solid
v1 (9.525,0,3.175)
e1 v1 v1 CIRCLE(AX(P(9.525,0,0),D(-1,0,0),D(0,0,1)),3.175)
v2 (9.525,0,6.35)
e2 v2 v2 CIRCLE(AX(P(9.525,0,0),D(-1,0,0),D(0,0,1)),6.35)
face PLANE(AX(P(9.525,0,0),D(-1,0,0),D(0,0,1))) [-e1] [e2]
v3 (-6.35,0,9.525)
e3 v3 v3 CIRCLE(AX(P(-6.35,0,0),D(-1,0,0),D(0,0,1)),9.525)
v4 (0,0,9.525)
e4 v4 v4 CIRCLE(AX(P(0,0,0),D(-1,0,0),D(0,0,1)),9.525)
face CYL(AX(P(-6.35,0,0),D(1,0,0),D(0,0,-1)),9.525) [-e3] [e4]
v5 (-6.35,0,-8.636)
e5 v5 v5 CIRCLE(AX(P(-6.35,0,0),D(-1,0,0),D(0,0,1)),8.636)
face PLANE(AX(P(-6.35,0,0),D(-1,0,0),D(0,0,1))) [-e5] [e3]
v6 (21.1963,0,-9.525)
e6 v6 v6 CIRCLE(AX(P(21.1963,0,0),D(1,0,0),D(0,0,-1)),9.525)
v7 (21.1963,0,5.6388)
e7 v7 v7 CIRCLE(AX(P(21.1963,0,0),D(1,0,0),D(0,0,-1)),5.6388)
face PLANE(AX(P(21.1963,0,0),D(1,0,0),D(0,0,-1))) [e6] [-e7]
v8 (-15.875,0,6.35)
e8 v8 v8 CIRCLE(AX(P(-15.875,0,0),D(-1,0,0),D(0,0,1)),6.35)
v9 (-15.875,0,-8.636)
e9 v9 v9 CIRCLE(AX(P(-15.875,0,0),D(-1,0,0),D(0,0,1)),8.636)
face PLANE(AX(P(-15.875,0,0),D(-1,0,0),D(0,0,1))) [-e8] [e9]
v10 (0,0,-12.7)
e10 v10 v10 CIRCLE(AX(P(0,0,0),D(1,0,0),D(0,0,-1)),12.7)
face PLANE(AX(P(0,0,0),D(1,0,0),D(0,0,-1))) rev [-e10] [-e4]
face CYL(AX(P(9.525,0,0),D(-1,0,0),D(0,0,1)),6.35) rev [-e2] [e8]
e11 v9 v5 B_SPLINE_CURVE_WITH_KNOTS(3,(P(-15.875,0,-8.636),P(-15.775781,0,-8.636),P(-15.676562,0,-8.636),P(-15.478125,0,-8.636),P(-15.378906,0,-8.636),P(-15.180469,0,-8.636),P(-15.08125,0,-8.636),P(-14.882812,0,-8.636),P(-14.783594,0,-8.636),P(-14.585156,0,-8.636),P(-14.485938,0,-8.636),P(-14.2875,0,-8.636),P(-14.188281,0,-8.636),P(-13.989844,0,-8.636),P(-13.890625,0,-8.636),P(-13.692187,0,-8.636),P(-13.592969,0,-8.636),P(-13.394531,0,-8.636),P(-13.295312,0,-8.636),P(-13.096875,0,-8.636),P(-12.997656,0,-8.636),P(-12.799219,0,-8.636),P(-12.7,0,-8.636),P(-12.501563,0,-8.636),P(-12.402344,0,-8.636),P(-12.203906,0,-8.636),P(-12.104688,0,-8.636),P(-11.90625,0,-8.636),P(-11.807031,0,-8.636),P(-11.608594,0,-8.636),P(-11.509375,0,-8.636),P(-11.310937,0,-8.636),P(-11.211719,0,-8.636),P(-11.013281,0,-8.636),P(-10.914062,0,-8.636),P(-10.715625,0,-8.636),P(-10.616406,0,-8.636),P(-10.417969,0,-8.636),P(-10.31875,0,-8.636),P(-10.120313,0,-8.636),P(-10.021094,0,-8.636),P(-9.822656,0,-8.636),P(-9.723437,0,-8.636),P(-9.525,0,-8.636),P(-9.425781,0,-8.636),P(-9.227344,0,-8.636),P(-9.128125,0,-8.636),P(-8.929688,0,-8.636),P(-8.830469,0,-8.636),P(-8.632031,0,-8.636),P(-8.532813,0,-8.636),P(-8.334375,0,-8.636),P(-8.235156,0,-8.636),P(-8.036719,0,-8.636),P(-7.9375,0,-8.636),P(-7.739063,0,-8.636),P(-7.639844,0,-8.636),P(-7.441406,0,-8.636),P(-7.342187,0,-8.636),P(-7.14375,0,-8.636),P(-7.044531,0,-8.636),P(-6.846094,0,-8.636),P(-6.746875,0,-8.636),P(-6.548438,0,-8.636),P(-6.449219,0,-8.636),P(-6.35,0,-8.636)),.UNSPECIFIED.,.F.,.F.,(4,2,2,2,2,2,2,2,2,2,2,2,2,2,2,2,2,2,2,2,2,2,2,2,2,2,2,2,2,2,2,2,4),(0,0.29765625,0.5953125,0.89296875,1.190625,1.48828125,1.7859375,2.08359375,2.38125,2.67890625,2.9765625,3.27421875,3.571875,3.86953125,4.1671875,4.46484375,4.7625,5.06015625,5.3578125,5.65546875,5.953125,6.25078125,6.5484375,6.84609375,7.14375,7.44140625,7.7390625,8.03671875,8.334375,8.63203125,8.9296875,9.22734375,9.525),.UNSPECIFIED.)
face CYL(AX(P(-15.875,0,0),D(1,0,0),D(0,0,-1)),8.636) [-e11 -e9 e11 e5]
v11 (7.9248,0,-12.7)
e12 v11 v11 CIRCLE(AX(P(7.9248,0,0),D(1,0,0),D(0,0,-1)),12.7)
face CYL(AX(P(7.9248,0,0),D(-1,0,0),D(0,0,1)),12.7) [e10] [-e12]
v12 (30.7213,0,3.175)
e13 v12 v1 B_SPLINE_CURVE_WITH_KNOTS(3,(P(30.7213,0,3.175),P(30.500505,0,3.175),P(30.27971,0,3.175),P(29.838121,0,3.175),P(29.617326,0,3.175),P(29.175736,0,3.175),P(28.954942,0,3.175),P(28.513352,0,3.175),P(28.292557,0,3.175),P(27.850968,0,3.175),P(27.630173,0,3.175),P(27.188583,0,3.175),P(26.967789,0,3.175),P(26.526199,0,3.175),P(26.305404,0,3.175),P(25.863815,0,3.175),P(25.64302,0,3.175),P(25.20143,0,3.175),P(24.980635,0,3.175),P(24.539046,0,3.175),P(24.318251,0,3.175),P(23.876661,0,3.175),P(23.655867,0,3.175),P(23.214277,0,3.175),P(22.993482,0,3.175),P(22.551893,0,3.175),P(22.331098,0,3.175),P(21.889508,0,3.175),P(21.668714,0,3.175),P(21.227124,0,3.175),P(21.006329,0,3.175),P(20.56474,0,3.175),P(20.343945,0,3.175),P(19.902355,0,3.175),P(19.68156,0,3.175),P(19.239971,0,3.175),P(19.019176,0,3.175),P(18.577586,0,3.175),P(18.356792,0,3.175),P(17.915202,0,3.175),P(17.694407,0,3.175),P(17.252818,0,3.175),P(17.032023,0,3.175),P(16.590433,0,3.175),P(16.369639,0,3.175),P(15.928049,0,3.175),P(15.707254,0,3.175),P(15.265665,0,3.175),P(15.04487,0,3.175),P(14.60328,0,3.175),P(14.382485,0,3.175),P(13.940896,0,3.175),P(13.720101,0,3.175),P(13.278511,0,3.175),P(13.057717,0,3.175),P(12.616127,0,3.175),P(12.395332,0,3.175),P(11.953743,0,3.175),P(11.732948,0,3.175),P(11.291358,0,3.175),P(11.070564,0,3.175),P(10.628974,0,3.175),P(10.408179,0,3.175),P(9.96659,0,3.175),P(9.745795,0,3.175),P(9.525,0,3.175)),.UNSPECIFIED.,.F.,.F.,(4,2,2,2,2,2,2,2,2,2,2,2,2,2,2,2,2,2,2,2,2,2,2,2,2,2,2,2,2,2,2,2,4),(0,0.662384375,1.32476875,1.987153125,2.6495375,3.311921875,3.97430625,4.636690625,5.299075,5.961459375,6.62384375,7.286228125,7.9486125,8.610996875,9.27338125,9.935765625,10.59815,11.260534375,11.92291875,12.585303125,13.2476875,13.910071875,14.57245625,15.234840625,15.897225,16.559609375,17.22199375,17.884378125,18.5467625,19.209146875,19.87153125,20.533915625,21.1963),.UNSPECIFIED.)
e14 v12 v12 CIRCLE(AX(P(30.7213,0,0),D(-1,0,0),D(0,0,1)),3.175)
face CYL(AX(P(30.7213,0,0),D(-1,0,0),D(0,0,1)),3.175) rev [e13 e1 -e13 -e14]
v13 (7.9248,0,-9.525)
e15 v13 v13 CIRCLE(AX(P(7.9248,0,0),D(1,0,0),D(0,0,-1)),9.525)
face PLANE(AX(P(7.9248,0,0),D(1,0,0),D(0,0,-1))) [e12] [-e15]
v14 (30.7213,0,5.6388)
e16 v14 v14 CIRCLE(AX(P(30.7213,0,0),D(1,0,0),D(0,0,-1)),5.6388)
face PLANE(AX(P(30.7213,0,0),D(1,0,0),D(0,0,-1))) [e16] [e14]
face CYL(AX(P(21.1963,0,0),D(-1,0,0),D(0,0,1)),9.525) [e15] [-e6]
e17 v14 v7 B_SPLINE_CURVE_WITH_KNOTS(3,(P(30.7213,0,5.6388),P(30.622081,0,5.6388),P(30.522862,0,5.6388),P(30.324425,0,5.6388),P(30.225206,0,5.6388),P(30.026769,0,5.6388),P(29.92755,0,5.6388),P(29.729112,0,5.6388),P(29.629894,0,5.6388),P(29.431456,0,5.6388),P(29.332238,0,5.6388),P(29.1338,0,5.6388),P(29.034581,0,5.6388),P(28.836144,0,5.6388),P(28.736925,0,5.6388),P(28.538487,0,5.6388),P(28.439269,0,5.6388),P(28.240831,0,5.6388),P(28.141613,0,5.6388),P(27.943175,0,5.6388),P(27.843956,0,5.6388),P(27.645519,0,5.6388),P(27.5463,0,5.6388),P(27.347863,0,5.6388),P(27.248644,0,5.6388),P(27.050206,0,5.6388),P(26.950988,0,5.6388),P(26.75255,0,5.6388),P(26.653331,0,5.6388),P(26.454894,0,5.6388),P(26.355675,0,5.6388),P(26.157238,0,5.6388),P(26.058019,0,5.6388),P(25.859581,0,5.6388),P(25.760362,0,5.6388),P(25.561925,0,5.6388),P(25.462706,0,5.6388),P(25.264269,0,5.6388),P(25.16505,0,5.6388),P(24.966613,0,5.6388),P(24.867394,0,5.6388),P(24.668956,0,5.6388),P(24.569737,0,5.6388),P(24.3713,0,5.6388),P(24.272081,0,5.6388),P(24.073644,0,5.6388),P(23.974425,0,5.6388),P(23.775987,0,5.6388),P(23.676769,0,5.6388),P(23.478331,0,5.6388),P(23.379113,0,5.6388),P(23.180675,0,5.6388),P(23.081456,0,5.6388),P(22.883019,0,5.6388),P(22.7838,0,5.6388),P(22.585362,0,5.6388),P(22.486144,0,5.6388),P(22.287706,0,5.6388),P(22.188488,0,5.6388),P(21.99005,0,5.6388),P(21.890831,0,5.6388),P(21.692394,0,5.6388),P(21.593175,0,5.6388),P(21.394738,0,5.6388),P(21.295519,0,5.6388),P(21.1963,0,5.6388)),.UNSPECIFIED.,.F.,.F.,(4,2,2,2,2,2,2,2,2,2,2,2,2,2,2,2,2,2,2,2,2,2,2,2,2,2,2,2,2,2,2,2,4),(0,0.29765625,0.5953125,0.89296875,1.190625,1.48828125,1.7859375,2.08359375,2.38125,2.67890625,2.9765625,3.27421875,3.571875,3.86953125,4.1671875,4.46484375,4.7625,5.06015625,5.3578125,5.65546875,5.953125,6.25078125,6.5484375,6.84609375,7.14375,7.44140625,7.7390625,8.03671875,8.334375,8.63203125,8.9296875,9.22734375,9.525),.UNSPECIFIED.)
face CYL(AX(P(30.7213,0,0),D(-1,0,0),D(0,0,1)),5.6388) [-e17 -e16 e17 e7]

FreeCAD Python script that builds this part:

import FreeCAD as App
import Part
import Sketcher

V = App.Vector
Q = App.Units.Quantity

doc = App.newDocument("Part")
params = doc.addObject("Spreadsheet::Sheet", "Params")
for row, (alias, value) in enumerate([
    ("sketch1_diameter", "1 in"),
    ("pad1_length", "0.312 in"),
    ("sketch2_diameter", "0.75 in"),
    ("pad2_length", "0.5225 in"),
    ("sketch3_diameter", "0.444 in"),
    ("pad3_length", "0.375 in"),
    ("sketch4_diameter", "0.75 in"),
    ("pad4_length", "0.25 in"),
    ("sketch5_diameter", "0.68 in"),
    ("pad5_length", "0.375 in"),
    ("sketch6_diameter", "0.5 in"),
    ("pocket1_length", "1 in"),
    ("sketch7_diameter", "0.25 in"),
], start=1):
    params.set(f"A{row}", alias)
    params.set(f"B{row}", "=" + value)
    params.setAlias(f"B{row}", alias)

body = doc.addObject("PartDesign::Body", "Body")

sketch1 = body.newObject("Sketcher::SketchObject", "Sketch")
sketch1.AttachmentSupport = (doc.getObject("YZ_Plane"), [""])
sketch1.MapMode = "FlatFace"
sketch1.addGeometry(Part.Circle(V(0, 0, 0), V(0, 0, 1), 13), False)
sketch1.addConstraint([
    Sketcher.Constraint("Coincident", 0, 3, -1, 1),
    Sketcher.Constraint("Diameter", 0, Q("1 in")),
])
sketch1.setExpression("Constraints[1]", "Params.sketch1_diameter")
pad1 = body.newObject("PartDesign::Pad", "Pad")
pad1.Profile = sketch1
pad1.setExpression("Length", "Params.pad1_length")

sketch2 = body.newObject("Sketcher::SketchObject", "Sketch001")
sketch2.AttachmentSupport = (doc.getObject("YZ_Plane"), [""])
sketch2.MapMode = "FlatFace"
sketch2.AttachmentOffset = App.Placement(V(0, 0, 0.312 * 25.4), App.Rotation())
sketch2.addGeometry(Part.Circle(V(0, 0, 0), V(0, 0, 1), 10), False)
sketch2.addConstraint([
    Sketcher.Constraint("Coincident", 0, 3, -1, 1),
    Sketcher.Constraint("Diameter", 0, Q("0.75 in")),
])
sketch2.setExpression("Constraints[1]", "Params.sketch2_diameter")
pad2 = body.newObject("PartDesign::Pad", "Pad001")
pad2.Profile = sketch2
pad2.setExpression("Length", "Params.pad2_length")

sketch3 = body.newObject("Sketcher::SketchObject", "Sketch002")
sketch3.AttachmentSupport = (doc.getObject("YZ_Plane"), [""])
sketch3.MapMode = "FlatFace"
sketch3.AttachmentOffset = App.Placement(V(0, 0, 0.8345 * 25.4), App.Rotation())
sketch3.addGeometry(Part.Circle(V(0, 0, 0), V(0, 0, 1), 6), False)
sketch3.addConstraint([
    Sketcher.Constraint("Coincident", 0, 3, -1, 1),
    Sketcher.Constraint("Diameter", 0, Q("0.444 in")),
])
sketch3.setExpression("Constraints[1]", "Params.sketch3_diameter")
pad3 = body.newObject("PartDesign::Pad", "Pad002")
pad3.Profile = sketch3
pad3.setExpression("Length", "Params.pad3_length")

sketch4 = body.newObject("Sketcher::SketchObject", "Sketch003")
sketch4.AttachmentSupport = (doc.getObject("YZ_Plane"), [""])
sketch4.MapMode = "FlatFace"
sketch4.AttachmentOffset = App.Placement(V(0, 0, -0.25 * 25.4), App.Rotation())
sketch4.addGeometry(Part.Circle(V(0, 0, 0), V(0, 0, 1), 10), False)
sketch4.addConstraint([
    Sketcher.Constraint("Coincident", 0, 3, -1, 1),
    Sketcher.Constraint("Diameter", 0, Q("0.75 in")),
])
sketch4.setExpression("Constraints[1]", "Params.sketch4_diameter")
pad4 = body.newObject("PartDesign::Pad", "Pad003")
pad4.Profile = sketch4
pad4.setExpression("Length", "Params.pad4_length")

sketch5 = body.newObject("Sketcher::SketchObject", "Sketch004")
sketch5.AttachmentSupport = (doc.getObject("YZ_Plane"), [""])
sketch5.MapMode = "FlatFace"
sketch5.AttachmentOffset = App.Placement(V(0, 0, -0.25 * 25.4), App.Rotation())
sketch5.addGeometry(Part.Circle(V(0, 0, 0), V(0, 0, 1), 9), False)
sketch5.addConstraint([
    Sketcher.Constraint("Coincident", 0, 3, -1, 1),
    Sketcher.Constraint("Diameter", 0, Q("0.68 in")),
])
sketch5.setExpression("Constraints[1]", "Params.sketch5_diameter")
pad5 = body.newObject("PartDesign::Pad", "Pad004")
pad5.Profile = sketch5
pad5.setExpression("Length", "Params.pad5_length")
pad5.Reversed = True

sketch6 = body.newObject("Sketcher::SketchObject", "Sketch005")
sketch6.AttachmentSupport = (doc.getObject("YZ_Plane"), [""])
sketch6.MapMode = "FlatFace"
sketch6.AttachmentOffset = App.Placement(V(0, 0, -0.625 * 25.4), App.Rotation())
sketch6.addGeometry(Part.Circle(V(0, 0, 0), V(0, 0, 1), 6), False)
sketch6.addConstraint([
    Sketcher.Constraint("Coincident", 0, 3, -1, 1),
    Sketcher.Constraint("Diameter", 0, Q("0.5 in")),
])
sketch6.setExpression("Constraints[1]", "Params.sketch6_diameter")
pocket1 = body.newObject("PartDesign::Pocket", "Pocket")
pocket1.Profile = sketch6
pocket1.setExpression("Length", "Params.pocket1_length")
pocket1.Reversed = True

sketch7 = body.newObject("Sketcher::SketchObject", "Sketch006")
sketch7.AttachmentSupport = (doc.getObject("YZ_Plane"), [""])
sketch7.MapMode = "FlatFace"
sketch7.AttachmentOffset = App.Placement(V(0, 0, 0.375 * 25.4), App.Rotation())
sketch7.addGeometry(Part.Circle(V(0, 0, 0), V(0, 0, 1), 3.2), False)
sketch7.addConstraint([
    Sketcher.Constraint("Coincident", 0, 3, -1, 1),
    Sketcher.Constraint("Diameter", 0, Q("0.25 in")),
])
sketch7.setExpression("Constraints[1]", "Params.sketch7_diameter")
pocket2 = body.newObject("PartDesign::Pocket", "Pocket001")
pocket2.Profile = sketch7
pocket2.Type = "ThroughAll"
pocket2.Reversed = True

doc.recompute()
